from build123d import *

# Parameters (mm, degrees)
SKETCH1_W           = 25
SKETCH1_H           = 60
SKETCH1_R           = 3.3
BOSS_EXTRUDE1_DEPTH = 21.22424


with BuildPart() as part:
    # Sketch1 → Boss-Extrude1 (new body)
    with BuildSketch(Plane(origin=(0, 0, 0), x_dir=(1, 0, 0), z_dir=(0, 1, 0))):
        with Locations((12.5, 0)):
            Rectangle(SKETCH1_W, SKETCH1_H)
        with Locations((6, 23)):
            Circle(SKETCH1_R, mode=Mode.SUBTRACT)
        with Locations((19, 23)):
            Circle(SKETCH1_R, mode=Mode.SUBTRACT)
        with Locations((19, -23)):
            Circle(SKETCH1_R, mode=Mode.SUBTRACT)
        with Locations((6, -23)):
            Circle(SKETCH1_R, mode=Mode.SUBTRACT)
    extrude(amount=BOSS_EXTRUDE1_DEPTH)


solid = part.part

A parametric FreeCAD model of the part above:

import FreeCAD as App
import Part
import Sketcher
from FreeCAD import Vector

doc = App.newDocument("Part")
body = doc.addObject("PartDesign::Body", "Body")

# Sketch on XZ plane
sketch1 = body.newObject("Sketcher::SketchObject", "Sketch")
sketch1.AttachmentSupport = (doc.getObject("XZ_Plane"), [""])
sketch1.MapMode = "FlatFace"
sketch1.addGeometry([
    Part.LineSegment(Vector(0, -30, 0), Vector(0, 30, 0)),  # 0
    Part.LineSegment(Vector(0, 30, 0), Vector(25, 30, 0)),  # 1
    Part.LineSegment(Vector(25, 30, 0), Vector(25, -30, 0)),  # 2
    Part.LineSegment(Vector(25, -30, 0), Vector(0, -30, 0)),  # 3
    Part.Circle(Vector(6, 23, 0), Vector(0, 0, 1), 3.3),  # 4
    Part.Circle(Vector(19, 23, 0), Vector(0, 0, 1), 3.3),  # 5
    Part.Circle(Vector(6, -23, 0), Vector(0, 0, 1), 3.3),  # 6
    Part.Circle(Vector(19, -23, 0), Vector(0, 0, 1), 3.3),  # 7
], False)
sketch1.addConstraint([
    Sketcher.Constraint("Coincident", 0, 2, 1, 1),
    Sketcher.Constraint("Coincident", 1, 2, 2, 1),
    Sketcher.Constraint("Coincident", 2, 2, 3, 1),
    Sketcher.Constraint("Coincident", 3, 2, 0, 1),
    Sketcher.Constraint("Vertical", 0),
    Sketcher.Constraint("Horizontal", 1),
    Sketcher.Constraint("Vertical", 2),
    Sketcher.Constraint("Horizontal", 3),
    Sketcher.Constraint("Equal", 4, 5),
    Sketcher.Constraint("Equal", 5, 6),
    Sketcher.Constraint("Equal", 6, 7),
    Sketcher.Constraint("Symmetric", 0, 2, 3, 2, -1, 1),
    Sketcher.Constraint("Symmetric", 4, 3, 6, 3, -1),
    Sketcher.Constraint("Symmetric", 5, 3, 7, 3, -1),
    Sketcher.Constraint("Horizontal", 4, 3, 5, 3),
    Sketcher.Constraint("Diameter", 4, 6.6),
    Sketcher.Constraint("DistanceX", 1, 1, 1, 2, 25.0),
    Sketcher.Constraint("DistanceY", 0, 1, 0, 2, 60.0),
    Sketcher.Constraint("DistanceX", -1, 1, 4, 3, 6.0),
    Sketcher.Constraint("DistanceY", -1, 1, 4, 3, 23.0),
    Sketcher.Constraint("DistanceX", -1, 1, 5, 3, 19.0),
])
pad1 = body.newObject("PartDesign::Pad", "Pad")
pad1.Profile = sketch1
pad1.Length = 21.22424
pad1.Reversed = True

doc.recompute()
